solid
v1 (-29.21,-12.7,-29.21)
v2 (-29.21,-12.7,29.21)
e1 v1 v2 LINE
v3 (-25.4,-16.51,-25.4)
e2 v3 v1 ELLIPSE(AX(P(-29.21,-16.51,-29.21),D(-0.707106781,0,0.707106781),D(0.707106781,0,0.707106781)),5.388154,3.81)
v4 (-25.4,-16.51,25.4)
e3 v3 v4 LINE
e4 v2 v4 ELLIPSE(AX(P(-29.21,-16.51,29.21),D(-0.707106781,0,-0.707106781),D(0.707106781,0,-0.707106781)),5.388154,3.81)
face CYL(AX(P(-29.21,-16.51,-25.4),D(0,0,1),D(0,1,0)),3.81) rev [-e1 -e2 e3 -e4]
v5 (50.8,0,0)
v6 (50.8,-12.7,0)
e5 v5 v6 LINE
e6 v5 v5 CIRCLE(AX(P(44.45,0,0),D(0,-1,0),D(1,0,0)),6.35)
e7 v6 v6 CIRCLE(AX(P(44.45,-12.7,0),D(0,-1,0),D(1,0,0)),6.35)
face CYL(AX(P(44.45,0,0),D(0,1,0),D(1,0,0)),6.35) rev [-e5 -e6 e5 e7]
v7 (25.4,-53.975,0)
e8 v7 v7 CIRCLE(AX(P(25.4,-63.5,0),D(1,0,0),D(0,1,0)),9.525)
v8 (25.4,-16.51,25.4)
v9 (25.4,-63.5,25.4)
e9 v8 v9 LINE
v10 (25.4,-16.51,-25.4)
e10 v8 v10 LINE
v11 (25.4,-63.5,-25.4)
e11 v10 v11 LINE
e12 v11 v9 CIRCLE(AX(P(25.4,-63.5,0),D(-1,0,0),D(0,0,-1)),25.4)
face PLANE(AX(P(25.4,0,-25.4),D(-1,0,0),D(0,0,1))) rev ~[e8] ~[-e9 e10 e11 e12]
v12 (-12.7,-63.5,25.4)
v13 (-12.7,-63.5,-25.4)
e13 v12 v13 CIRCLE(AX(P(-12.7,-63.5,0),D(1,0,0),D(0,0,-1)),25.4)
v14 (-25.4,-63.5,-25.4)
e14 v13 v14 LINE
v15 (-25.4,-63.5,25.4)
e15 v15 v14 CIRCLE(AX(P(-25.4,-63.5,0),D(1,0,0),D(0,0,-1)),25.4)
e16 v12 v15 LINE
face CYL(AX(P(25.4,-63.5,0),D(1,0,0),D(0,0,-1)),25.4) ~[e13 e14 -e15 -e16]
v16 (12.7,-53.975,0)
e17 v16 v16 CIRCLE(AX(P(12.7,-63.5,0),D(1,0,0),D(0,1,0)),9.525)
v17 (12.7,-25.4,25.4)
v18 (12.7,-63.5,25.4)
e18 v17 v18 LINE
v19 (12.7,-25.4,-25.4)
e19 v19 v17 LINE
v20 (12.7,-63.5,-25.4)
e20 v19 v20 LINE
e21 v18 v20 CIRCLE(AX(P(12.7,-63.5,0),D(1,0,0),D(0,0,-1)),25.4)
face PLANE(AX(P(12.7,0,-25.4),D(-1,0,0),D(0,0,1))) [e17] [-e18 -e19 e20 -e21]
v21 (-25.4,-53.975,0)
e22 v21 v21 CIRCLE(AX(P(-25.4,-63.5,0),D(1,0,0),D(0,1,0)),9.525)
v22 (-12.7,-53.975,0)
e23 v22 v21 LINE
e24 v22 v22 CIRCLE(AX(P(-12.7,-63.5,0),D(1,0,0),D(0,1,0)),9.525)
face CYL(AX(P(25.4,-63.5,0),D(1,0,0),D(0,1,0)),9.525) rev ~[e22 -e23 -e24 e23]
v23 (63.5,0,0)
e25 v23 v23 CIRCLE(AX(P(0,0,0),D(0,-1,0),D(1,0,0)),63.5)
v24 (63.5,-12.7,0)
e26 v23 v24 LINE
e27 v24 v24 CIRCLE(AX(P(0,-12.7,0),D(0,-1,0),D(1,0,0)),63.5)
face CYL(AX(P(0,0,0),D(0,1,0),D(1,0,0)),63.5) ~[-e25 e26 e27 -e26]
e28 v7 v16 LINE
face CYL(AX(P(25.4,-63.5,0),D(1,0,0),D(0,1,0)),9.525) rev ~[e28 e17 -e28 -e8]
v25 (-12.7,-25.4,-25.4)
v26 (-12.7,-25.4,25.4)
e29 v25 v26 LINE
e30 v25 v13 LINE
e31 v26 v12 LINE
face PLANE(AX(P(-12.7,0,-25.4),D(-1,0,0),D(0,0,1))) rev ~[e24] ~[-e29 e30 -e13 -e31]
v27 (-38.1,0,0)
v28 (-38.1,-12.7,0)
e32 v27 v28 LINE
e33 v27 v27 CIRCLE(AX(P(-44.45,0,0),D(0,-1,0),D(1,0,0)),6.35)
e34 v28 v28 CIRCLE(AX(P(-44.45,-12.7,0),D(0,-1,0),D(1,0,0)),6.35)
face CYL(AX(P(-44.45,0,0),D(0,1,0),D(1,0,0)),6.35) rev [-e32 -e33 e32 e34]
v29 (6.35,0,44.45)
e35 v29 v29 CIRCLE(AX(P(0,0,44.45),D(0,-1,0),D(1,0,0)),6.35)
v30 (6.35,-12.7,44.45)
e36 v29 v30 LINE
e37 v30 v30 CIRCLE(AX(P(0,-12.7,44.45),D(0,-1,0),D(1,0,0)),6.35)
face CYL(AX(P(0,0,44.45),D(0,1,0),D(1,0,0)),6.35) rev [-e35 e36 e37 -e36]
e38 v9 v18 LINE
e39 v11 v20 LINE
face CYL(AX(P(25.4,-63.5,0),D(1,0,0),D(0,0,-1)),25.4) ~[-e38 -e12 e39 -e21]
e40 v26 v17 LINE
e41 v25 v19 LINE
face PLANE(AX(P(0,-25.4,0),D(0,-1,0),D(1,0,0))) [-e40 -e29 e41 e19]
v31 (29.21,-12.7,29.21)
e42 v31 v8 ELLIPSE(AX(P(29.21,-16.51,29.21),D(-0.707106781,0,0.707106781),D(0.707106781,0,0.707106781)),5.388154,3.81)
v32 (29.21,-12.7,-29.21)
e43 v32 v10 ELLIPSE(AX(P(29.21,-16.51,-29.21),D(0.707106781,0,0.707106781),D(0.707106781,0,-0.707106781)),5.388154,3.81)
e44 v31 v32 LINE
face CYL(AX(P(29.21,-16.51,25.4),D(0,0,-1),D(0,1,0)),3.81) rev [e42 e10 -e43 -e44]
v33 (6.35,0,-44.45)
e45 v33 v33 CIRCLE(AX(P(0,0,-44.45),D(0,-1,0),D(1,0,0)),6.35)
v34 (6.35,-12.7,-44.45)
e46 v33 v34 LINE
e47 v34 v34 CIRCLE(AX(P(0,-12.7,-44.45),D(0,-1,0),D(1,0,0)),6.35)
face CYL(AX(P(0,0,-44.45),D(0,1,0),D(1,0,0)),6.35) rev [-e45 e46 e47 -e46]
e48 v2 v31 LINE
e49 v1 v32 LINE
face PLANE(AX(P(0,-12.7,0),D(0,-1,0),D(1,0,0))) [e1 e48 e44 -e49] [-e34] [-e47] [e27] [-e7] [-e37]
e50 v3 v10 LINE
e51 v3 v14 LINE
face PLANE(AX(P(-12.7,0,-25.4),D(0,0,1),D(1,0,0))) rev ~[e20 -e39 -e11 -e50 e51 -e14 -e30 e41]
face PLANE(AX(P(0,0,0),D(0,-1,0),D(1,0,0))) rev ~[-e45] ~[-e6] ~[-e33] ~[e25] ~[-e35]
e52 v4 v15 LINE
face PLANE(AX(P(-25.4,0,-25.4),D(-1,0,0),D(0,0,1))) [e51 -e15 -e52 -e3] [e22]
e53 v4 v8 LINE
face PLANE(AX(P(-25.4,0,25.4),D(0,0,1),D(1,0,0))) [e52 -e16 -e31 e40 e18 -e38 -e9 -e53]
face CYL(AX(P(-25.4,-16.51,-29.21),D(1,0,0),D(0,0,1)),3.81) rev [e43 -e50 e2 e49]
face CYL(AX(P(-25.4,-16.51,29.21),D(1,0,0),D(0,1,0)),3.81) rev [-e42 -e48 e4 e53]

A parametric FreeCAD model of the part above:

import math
import FreeCAD as App
import Part
import Sketcher
from FreeCAD import Vector
Q = App.Units.Quantity


def edges_at(feature, points):
    """Names of the edges that pass closest to the given points."""
    edges = feature.Shape.Edges
    near = lambda p: min(range(len(edges)), key=lambda i: edges[i].distToShape(Part.Vertex(*p))[0])
    return sorted({f"Edge{near(p) + 1}" for p in points})

doc = App.newDocument("Part")
body = doc.addObject("PartDesign::Body", "Body")

sketch1 = body.newObject("Sketcher::SketchObject", "Sketch")
sketch1.AttachmentSupport = (doc.getObject("XZ_Plane"), [""])
sketch1.MapMode = "FlatFace"
sketch1.addGeometry(Part.Circle(Vector(0, 0, 0), Vector(0, 0, 1), 64), False)
sketch1.addGeometry(Part.Circle(Vector(0, -44, 0), Vector(0, 0, 1), 6), False)
sketch1.addGeometry(Part.LineSegment(Vector(25, -25, 0), Vector(-25, -25, 0)), False)
sketch1.addGeometry(Part.LineSegment(Vector(-25, -25, 0), Vector(-25, 25, 0)), False)
sketch1.addGeometry(Part.LineSegment(Vector(-25, 25, 0), Vector(25, 25, 0)), False)
sketch1.addGeometry(Part.LineSegment(Vector(25, 25, 0), Vector(25, -25, 0)), False)
sketch1.addGeometry(Part.Circle(Vector(-44, 0, 0), Vector(0, 0, 1), 6), False)
sketch1.addGeometry(Part.Circle(Vector(44, 0, 0), Vector(0, 0, 1), 6), False)
sketch1.addGeometry(Part.Circle(Vector(0, 44, 0), Vector(0, 0, 1), 6), False)
sketch1.addConstraint(Sketcher.Constraint("Coincident", 2, 2, 3, 1))
sketch1.addConstraint(Sketcher.Constraint("Coincident", 3, 2, 4, 1))
sketch1.addConstraint(Sketcher.Constraint("Coincident", 4, 2, 5, 1))
sketch1.addConstraint(Sketcher.Constraint("Coincident", 5, 2, 2, 1))
sketch1.addConstraint(Sketcher.Constraint("Horizontal", 2))
sketch1.addConstraint(Sketcher.Constraint("Vertical", 3))
sketch1.addConstraint(Sketcher.Constraint("Horizontal", 4))
sketch1.addConstraint(Sketcher.Constraint("Vertical", 5))
sketch1.addConstraint(Sketcher.Constraint("Coincident", 0, 3, -1, 1))
sketch1.addConstraint(Sketcher.Constraint("Equal", 1, 6))
sketch1.addConstraint(Sketcher.Constraint("Equal", 6, 7))
sketch1.addConstraint(Sketcher.Constraint("Equal", 7, 8))
sketch1.addConstraint(Sketcher.Constraint("Symmetric", 6, 3, 7, 3, -1, 1))
sketch1.addConstraint(Sketcher.Constraint("Symmetric", 1, 3, 8, 3, -1, 1))
sketch1.addConstraint(Sketcher.Constraint("Symmetric", 2, 2, 4, 2, -1, 1))
sketch1.addConstraint(Sketcher.Constraint("PointOnObject", 1, 3, -2))
sketch1.addConstraint(Sketcher.Constraint("PointOnObject", 6, 3, -1))
sketch1.addConstraint(Sketcher.Constraint("Equal", 4, 3))
sketch1.addConstraint(Sketcher.Constraint("Diameter", 0, Q("5 in")))
sketch1.addConstraint(Sketcher.Constraint("Diameter", 1, Q("0.5 in")))
sketch1.addConstraint(Sketcher.Constraint("DistanceX", 2, 2, 2, 1, Q("2 in")))
sketch1.addConstraint(Sketcher.Constraint("DistanceX", 6, 3, 7, 3, Q("3.5 in")))
sketch1.addConstraint(Sketcher.Constraint("DistanceY", 1, 3, 8, 3, Q("3.5 in")))
pad1 = body.newObject("PartDesign::Pad", "Pad")
pad1.Profile = sketch1
pad1.Length = Q("0.5 in")

sketch2 = body.newObject("Sketcher::SketchObject", "Sketch001")
sketch2.AttachmentSupport = (doc.getObject("XZ_Plane"), [""])
sketch2.MapMode = "FlatFace"
sketch2.addGeometry(Part.LineSegment(Vector(-25, 25, 0), Vector(-25, -25, 0)), False)
sketch2.addGeometry(Part.LineSegment(Vector(-25, -25, 0), Vector(-13, -25, 0)), False)
sketch2.addGeometry(Part.LineSegment(Vector(-13, -25, 0), Vector(-13, 25, 0)), False)
sketch2.addGeometry(Part.LineSegment(Vector(-13, 25, 0), Vector(-25, 25, 0)), False)
sketch2.addGeometry(Part.LineSegment(Vector(13, 25, 0), Vector(13, -25, 0)), False)
sketch2.addGeometry(Part.LineSegment(Vector(13, -25, 0), Vector(25, -25, 0)), False)
sketch2.addGeometry(Part.LineSegment(Vector(25, -25, 0), Vector(25, 25, 0)), False)
sketch2.addGeometry(Part.LineSegment(Vector(25, 25, 0), Vector(13, 25, 0)), False)
sketch2.addConstraint(Sketcher.Constraint("Coincident", 0, 2, 1, 1))
sketch2.addConstraint(Sketcher.Constraint("Coincident", 1, 2, 2, 1))
sketch2.addConstraint(Sketcher.Constraint("Coincident", 2, 2, 3, 1))
sketch2.addConstraint(Sketcher.Constraint("Coincident", 3, 2, 0, 1))
sketch2.addConstraint(Sketcher.Constraint("Coincident", 4, 2, 5, 1))
sketch2.addConstraint(Sketcher.Constraint("Coincident", 5, 2, 6, 1))
sketch2.addConstraint(Sketcher.Constraint("Coincident", 6, 2, 7, 1))
sketch2.addConstraint(Sketcher.Constraint("Coincident", 7, 2, 4, 1))
sketch2.addConstraint(Sketcher.Constraint("Vertical", 0))
sketch2.addConstraint(Sketcher.Constraint("Horizontal", 1))
sketch2.addConstraint(Sketcher.Constraint("Vertical", 2))
sketch2.addConstraint(Sketcher.Constraint("Horizontal", 3))
sketch2.addConstraint(Sketcher.Constraint("Vertical", 4))
sketch2.addConstraint(Sketcher.Constraint("Horizontal", 5))
sketch2.addConstraint(Sketcher.Constraint("Vertical", 6))
sketch2.addConstraint(Sketcher.Constraint("Horizontal", 7))
sketch2.addConstraint(Sketcher.Constraint("Symmetric", 2, 2, 4, 2, -1, 1))
sketch2.addConstraint(Sketcher.Constraint("Symmetric", 0, 2, 6, 2, -1, 1))
sketch2.addConstraint(Sketcher.Constraint("Horizontal", 1, 2, 4, 2))
sketch2.addConstraint(Sketcher.Constraint("DistanceY", 0, 2, 0, 1, Q("2 in")))
sketch2.addConstraint(Sketcher.Constraint("DistanceX", 1, 1, 1, 2, Q("0.5 in")))
sketch2.addConstraint(Sketcher.Constraint("DistanceX", 0, 2, -1, 1, Q("1 in")))
pad2 = body.newObject("PartDesign::Pad", "Pad001")
pad2.Profile = sketch2
pad2.Length = Q("5 in")

sketch3 = body.newObject("Sketcher::SketchObject", "Sketch002")
sketch3.AttachmentSupport = (doc.getObject("XZ_Plane"), [""])
sketch3.MapMode = "FlatFace"
sketch3.addGeometry(Part.LineSegment(Vector(-13, 25, 0), Vector(-13, -25, 0)), False)
sketch3.addGeometry(Part.LineSegment(Vector(-13, -25, 0), Vector(13, -25, 0)), False)
sketch3.addGeometry(Part.LineSegment(Vector(13, -25, 0), Vector(13, 25, 0)), False)
sketch3.addGeometry(Part.LineSegment(Vector(13, 25, 0), Vector(-13, 25, 0)), False)
sketch3.addConstraint(Sketcher.Constraint("Coincident", 0, 2, 1, 1))
sketch3.addConstraint(Sketcher.Constraint("Coincident", 1, 2, 2, 1))
sketch3.addConstraint(Sketcher.Constraint("Coincident", 2, 2, 3, 1))
sketch3.addConstraint(Sketcher.Constraint("Coincident", 3, 2, 0, 1))
sketch3.addConstraint(Sketcher.Constraint("Vertical", 0))
sketch3.addConstraint(Sketcher.Constraint("Horizontal", 1))
sketch3.addConstraint(Sketcher.Constraint("Vertical", 2))
sketch3.addConstraint(Sketcher.Constraint("Horizontal", 3))
sketch3.addConstraint(Sketcher.Constraint("Symmetric", 0, 2, 2, 2, -1, 1))
sketch3.addConstraint(Sketcher.Constraint("DistanceX", 1, 1, 1, 2, Q("1 in")))
sketch3.addConstraint(Sketcher.Constraint("DistanceY", 0, 2, 0, 1, Q("2 in")))
pad3 = body.newObject("PartDesign::Pad", "Pad002")
pad3.Profile = sketch3
pad3.Length = Q("1 in")

sketch4 = body.newObject("Sketcher::SketchObject", "Sketch003")
sketch4.AttachmentSupport = (doc.getObject("YZ_Plane"), [""])
sketch4.MapMode = "FlatFace"
sketch4.AttachmentOffset = App.Placement(Vector(0, 0, 1 * 25.4), App.Rotation())
sketch4.addGeometry(Part.LineSegment(Vector(-127, -25, 0), Vector(-64, -25, 0)), False)
sketch4.addGeometry(Part.ArcOfCircle(Part.Circle(Vector(-64, 0, 0), Vector(0, 0, 1), 25), math.radians(90), math.radians(270)), False)
sketch4.addGeometry(Part.LineSegment(Vector(-64, 25, 0), Vector(-127, 25, 0)), False)
sketch4.addGeometry(Part.LineSegment(Vector(-127, 25, 0), Vector(-127, -25, 0)), False)
sketch4.addGeometry(Part.Circle(Vector(-64, 0, 0), Vector(0, 0, 1), 10), False)
sketch4.addConstraint(Sketcher.Constraint("Tangent", 0, 2, 1, 2))
sketch4.addConstraint(Sketcher.Constraint("Tangent", 1, 1, 2, 1))
sketch4.addConstraint(Sketcher.Constraint("Coincident", 2, 2, 3, 1))
sketch4.addConstraint(Sketcher.Constraint("Coincident", 3, 2, 0, 1))
sketch4.addConstraint(Sketcher.Constraint("Horizontal", 0))
sketch4.addConstraint(Sketcher.Constraint("Horizontal", 2))
sketch4.addConstraint(Sketcher.Constraint("Vertical", 3))
sketch4.addConstraint(Sketcher.Constraint("Coincident", 4, 3, 1, 3))
sketch4.addConstraint(Sketcher.Constraint("PointOnObject", 1, 3, -1))
sketch4.addConstraint(Sketcher.Constraint("Radius", 1, Q("1 in")))
sketch4.addConstraint(Sketcher.Constraint("Diameter", 4, Q("0.75 in")))
sketch4.addConstraint(Sketcher.Constraint("DistanceX", 0, 1, 0, 2, Q("2.5 in")))
sketch4.addConstraint(Sketcher.Constraint("DistanceX", 2, 2, -1, 1, Q("5 in")))
pocket1 = body.newObject("PartDesign::Pocket", "Pocket")
pocket1.Profile = sketch4
pocket1.Length = Q("10 in")
doc.recompute()

fillet = body.newObject("PartDesign::Fillet", "Fillet")
fillet.Base = (pocket1, edges_at(pocket1, [
    (0, -12.7, 25.4),
    (25.4, -12.7, 0),
    (0, -12.7, -25.4),
    (-25.4, -12.7, 0),
]))
fillet.Radius = Q("0.15 in")

doc.recompute()
